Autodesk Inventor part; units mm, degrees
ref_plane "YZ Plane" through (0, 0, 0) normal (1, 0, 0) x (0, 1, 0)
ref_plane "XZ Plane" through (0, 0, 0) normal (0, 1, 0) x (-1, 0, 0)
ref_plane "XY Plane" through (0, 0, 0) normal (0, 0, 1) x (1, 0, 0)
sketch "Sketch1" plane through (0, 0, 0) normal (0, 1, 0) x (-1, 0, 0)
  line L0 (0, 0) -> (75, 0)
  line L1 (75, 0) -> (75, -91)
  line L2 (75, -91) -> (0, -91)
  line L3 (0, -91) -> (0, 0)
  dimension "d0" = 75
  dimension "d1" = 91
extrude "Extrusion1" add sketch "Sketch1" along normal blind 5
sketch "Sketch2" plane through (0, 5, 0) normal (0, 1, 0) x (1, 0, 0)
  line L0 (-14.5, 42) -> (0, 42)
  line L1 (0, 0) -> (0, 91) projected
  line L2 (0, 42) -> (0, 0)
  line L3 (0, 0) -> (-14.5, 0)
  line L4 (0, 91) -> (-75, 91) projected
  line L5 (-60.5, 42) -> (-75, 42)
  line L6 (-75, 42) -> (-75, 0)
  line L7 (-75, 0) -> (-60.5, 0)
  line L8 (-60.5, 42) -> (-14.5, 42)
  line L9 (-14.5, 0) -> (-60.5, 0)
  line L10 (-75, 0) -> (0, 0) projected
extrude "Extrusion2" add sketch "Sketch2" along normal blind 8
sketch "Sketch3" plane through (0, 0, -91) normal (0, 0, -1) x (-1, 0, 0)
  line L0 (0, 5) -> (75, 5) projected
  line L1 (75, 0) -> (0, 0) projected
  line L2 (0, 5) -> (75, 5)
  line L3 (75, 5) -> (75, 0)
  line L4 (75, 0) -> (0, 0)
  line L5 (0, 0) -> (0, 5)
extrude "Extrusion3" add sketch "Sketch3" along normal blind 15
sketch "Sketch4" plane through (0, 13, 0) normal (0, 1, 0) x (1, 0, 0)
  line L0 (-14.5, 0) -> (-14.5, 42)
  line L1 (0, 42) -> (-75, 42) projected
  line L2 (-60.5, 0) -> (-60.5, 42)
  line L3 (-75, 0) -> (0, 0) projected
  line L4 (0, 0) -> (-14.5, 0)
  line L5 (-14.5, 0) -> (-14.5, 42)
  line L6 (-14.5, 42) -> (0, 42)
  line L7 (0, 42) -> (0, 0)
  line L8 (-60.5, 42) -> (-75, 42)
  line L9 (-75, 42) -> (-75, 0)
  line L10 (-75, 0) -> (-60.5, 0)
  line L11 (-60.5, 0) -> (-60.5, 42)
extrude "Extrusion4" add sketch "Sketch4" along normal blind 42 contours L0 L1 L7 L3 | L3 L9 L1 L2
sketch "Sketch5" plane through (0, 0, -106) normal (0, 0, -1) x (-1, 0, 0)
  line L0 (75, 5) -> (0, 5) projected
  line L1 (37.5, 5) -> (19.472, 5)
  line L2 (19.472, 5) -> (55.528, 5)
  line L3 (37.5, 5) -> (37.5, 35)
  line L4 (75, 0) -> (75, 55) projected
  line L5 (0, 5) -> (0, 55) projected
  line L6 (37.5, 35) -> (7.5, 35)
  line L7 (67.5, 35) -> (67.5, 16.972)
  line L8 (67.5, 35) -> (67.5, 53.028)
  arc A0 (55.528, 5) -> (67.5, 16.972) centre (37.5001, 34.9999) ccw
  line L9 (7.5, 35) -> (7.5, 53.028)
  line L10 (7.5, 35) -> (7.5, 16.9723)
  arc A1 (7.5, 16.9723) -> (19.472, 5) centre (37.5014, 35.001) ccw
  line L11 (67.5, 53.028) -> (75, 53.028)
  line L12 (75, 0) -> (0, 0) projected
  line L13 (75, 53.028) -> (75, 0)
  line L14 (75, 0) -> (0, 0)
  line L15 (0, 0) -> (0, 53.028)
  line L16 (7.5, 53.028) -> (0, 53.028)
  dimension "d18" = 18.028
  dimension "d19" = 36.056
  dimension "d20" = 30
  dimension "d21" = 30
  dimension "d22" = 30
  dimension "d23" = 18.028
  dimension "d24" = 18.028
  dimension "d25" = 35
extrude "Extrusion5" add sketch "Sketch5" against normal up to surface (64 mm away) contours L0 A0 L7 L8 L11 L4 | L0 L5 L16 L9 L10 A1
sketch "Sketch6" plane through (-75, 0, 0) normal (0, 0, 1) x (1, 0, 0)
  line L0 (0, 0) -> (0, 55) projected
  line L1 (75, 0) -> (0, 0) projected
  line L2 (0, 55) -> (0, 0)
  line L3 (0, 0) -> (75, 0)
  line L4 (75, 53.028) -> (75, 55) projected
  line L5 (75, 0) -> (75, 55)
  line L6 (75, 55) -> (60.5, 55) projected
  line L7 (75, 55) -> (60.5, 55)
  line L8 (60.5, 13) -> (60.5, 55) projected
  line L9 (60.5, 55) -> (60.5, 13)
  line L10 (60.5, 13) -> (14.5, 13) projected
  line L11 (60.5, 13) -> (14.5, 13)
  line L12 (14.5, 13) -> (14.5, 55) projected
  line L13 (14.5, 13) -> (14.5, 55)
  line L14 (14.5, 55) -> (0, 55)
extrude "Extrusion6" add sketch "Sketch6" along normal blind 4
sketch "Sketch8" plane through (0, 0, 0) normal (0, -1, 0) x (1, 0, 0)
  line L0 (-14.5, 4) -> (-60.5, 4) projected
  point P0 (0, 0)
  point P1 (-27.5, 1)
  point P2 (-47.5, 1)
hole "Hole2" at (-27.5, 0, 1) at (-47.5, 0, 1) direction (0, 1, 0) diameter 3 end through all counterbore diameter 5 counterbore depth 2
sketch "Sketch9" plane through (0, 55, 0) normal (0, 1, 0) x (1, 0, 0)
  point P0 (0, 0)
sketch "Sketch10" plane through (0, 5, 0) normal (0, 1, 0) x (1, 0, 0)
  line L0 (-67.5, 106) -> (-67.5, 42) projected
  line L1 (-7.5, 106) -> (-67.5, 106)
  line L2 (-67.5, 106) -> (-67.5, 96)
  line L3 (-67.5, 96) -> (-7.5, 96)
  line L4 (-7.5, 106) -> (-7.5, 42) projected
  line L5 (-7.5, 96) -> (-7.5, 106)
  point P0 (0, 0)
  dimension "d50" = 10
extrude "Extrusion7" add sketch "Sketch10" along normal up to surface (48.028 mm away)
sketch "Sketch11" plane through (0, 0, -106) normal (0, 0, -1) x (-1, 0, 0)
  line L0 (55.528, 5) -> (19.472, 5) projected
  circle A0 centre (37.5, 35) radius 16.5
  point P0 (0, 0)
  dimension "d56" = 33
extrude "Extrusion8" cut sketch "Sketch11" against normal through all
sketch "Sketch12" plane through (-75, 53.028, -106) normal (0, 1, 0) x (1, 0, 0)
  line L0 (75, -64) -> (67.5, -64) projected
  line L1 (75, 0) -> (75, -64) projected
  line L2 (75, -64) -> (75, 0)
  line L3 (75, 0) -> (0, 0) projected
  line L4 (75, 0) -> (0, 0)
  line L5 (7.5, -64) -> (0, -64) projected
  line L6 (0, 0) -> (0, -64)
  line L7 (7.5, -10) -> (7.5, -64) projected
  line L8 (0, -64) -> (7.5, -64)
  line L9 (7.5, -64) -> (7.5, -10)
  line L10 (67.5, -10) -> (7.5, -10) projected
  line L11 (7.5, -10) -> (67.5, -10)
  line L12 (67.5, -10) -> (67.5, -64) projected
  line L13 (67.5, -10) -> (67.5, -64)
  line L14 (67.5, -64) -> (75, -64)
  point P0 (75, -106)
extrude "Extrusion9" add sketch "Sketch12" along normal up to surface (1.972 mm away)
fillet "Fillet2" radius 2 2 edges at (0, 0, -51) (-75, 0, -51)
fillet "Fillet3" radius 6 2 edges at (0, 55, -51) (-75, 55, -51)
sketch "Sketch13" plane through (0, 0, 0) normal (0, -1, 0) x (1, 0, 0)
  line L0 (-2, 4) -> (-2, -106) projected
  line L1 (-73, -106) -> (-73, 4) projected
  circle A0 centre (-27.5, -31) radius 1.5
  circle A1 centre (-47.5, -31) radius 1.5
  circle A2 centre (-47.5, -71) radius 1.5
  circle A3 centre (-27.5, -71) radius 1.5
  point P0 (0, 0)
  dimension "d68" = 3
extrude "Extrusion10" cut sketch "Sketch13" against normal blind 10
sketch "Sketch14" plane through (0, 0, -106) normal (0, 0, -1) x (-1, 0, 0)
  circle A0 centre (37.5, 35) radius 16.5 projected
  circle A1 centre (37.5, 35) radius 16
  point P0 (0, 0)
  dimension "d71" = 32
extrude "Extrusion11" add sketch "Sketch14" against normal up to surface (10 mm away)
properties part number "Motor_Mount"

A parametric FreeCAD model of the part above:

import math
import FreeCAD as App
import Part
import Sketcher
from FreeCAD import Vector
Q = App.Units.Quantity


def edges_at(feature, points):
    """Names of the edges that pass closest to the given points."""
    edges = feature.Shape.Edges
    near = lambda p: min(range(len(edges)), key=lambda i: edges[i].distToShape(Part.Vertex(*p))[0])
    return sorted({f"Edge{near(p) + 1}" for p in points})

doc = App.newDocument("Part")
body = doc.addObject("PartDesign::Body", "Body")

# Sketch on XZ plane
sketch1 = body.newObject("Sketcher::SketchObject", "Sketch")
sketch1.AttachmentSupport = (doc.getObject("XZ_Plane"), [""])
sketch1.MapMode = "FlatFace"
sketch1.addGeometry([
    Part.LineSegment(Vector(-75, 0, 0), Vector(0, 0, 0)),
    Part.LineSegment(Vector(0, 0, 0), Vector(0, -91, 0)),
    Part.LineSegment(Vector(0, -91, 0), Vector(-75, -91, 0)),
    Part.LineSegment(Vector(-75, -91, 0), Vector(-75, 0, 0)),
], False)
sketch1.addConstraint([
    Sketcher.Constraint("Coincident", 0, 2, 1, 1),
    Sketcher.Constraint("Coincident", 1, 2, 2, 1),
    Sketcher.Constraint("Coincident", 2, 2, 3, 1),
    Sketcher.Constraint("Coincident", 3, 2, 0, 1),
    Sketcher.Constraint("Horizontal", 0),
    Sketcher.Constraint("Vertical", 1),
    Sketcher.Constraint("Horizontal", 2),
    Sketcher.Constraint("Vertical", 3),
    Sketcher.Constraint("Coincident", 0, 2, -1, 1),
    Sketcher.Constraint("DistanceX", 0, 1, 0, 2, Q("75 mm")),
    Sketcher.Constraint("DistanceY", 1, 2, 1, 1, Q("91 mm")),
])
pad1 = body.newObject("PartDesign::Pad", "Pad")
pad1.Profile = sketch1
pad1.Length = 5
pad1.Reversed = True

# Sketch on XZ plane
sketch2 = body.newObject("Sketcher::SketchObject", "Sketch001")
sketch2.AttachmentSupport = (doc.getObject("XZ_Plane"), [""])
sketch2.MapMode = "FlatFace"
sketch2.AttachmentOffset = App.Placement(Vector(0, 0, -5), App.Rotation())
sketch2.addGeometry([
    Part.LineSegment(Vector(0, -42, 0), Vector(-75, -42, 0)),
    Part.LineSegment(Vector(-75, -42, 0), Vector(-75, 0, 0)),
    Part.LineSegment(Vector(-75, 0, 0), Vector(0, 0, 0)),
    Part.LineSegment(Vector(0, 0, 0), Vector(0, -42, 0)),
], False)
sketch2.addConstraint([
    Sketcher.Constraint("Coincident", 0, 2, 1, 1),
    Sketcher.Constraint("Coincident", 1, 2, 2, 1),
    Sketcher.Constraint("Coincident", 2, 2, 3, 1),
    Sketcher.Constraint("Coincident", 3, 2, 0, 1),
    Sketcher.Constraint("Horizontal", 0),
    Sketcher.Constraint("Vertical", 1),
    Sketcher.Constraint("Horizontal", 2),
    Sketcher.Constraint("Vertical", 3),
    Sketcher.Constraint("Coincident", 2, 2, -1, 1),
    Sketcher.Constraint("DistanceX", 0, 2, 0, 1, Q("75 mm")),
    Sketcher.Constraint("DistanceY", 1, 1, 1, 2, Q("42 mm")),
])
pad2 = body.newObject("PartDesign::Pad", "Pad001")
pad2.Profile = sketch2
pad2.Length = 8
pad2.Reversed = True

# Sketch on XY plane
sketch3 = body.newObject("Sketcher::SketchObject", "Sketch002")
sketch3.AttachmentSupport = (doc.getObject("XY_Plane"), [""])
sketch3.MapMode = "FlatFace"
sketch3.AttachmentOffset = App.Placement(Vector(0, 0, -91), App.Rotation())
sketch3.addGeometry([
    Part.LineSegment(Vector(-75, 5, 0), Vector(0, 5, 0)),
    Part.LineSegment(Vector(0, 5, 0), Vector(0, 0, 0)),
    Part.LineSegment(Vector(0, 0, 0), Vector(-75, 0, 0)),
    Part.LineSegment(Vector(-75, 0, 0), Vector(-75, 5, 0)),
], False)
sketch3.addConstraint([
    Sketcher.Constraint("Coincident", 0, 2, 1, 1),
    Sketcher.Constraint("Coincident", 1, 2, 2, 1),
    Sketcher.Constraint("Coincident", 2, 2, 3, 1),
    Sketcher.Constraint("Coincident", 3, 2, 0, 1),
    Sketcher.Constraint("Horizontal", 0),
    Sketcher.Constraint("Vertical", 1),
    Sketcher.Constraint("Horizontal", 2),
    Sketcher.Constraint("Vertical", 3),
    Sketcher.Constraint("Coincident", 1, 2, -1, 1),
    Sketcher.Constraint("DistanceX", 0, 1, 0, 2, Q("75 mm")),
    Sketcher.Constraint("DistanceY", 1, 2, 1, 1, Q("5 mm")),
])
pad3 = body.newObject("PartDesign::Pad", "Pad002")
pad3.Profile = sketch3
pad3.Length = 15
pad3.Reversed = True

# Sketch on XZ plane
sketch4 = body.newObject("Sketcher::SketchObject", "Sketch003")
sketch4.AttachmentSupport = (doc.getObject("XZ_Plane"), [""])
sketch4.MapMode = "FlatFace"
sketch4.AttachmentOffset = App.Placement(Vector(0, 0, -13), App.Rotation())
sketch4.addGeometry([
    Part.LineSegment(Vector(-14, -42, 0), Vector(-14, 0, 0)),  # 0
    Part.LineSegment(Vector(-14, 0, 0), Vector(0, 0, 0)),  # 1
    Part.LineSegment(Vector(0, 0, 0), Vector(0, -42, 0)),  # 2
    Part.LineSegment(Vector(0, -42, 0), Vector(-14, -42, 0)),  # 3
    Part.LineSegment(Vector(-75, 0, 0), Vector(-60, 0, 0)),  # 4
    Part.LineSegment(Vector(-60, 0, 0), Vector(-60, -42, 0)),  # 5
    Part.LineSegment(Vector(-60, -42, 0), Vector(-75, -42, 0)),  # 6
    Part.LineSegment(Vector(-75, -42, 0), Vector(-75, 0, 0)),  # 7
], False)
sketch4.addConstraint([
    Sketcher.Constraint("Coincident", 0, 2, 1, 1),
    Sketcher.Constraint("Coincident", 1, 2, 2, 1),
    Sketcher.Constraint("Coincident", 2, 2, 3, 1),
    Sketcher.Constraint("Coincident", 3, 2, 0, 1),
    Sketcher.Constraint("Coincident", 4, 2, 5, 1),
    Sketcher.Constraint("Coincident", 5, 2, 6, 1),
    Sketcher.Constraint("Coincident", 6, 2, 7, 1),
    Sketcher.Constraint("Coincident", 7, 2, 4, 1),
    Sketcher.Constraint("Vertical", 0),
    Sketcher.Constraint("Horizontal", 1),
    Sketcher.Constraint("Vertical", 2),
    Sketcher.Constraint("Horizontal", 3),
    Sketcher.Constraint("Horizontal", 4),
    Sketcher.Constraint("Vertical", 5),
    Sketcher.Constraint("Horizontal", 6),
    Sketcher.Constraint("Vertical", 7),
    Sketcher.Constraint("Coincident", 1, 2, -1, 1),
    Sketcher.Constraint("PointOnObject", 4, 2, -1),
    Sketcher.Constraint("Horizontal", 3, 2, 5, 2),
    Sketcher.Constraint("Equal", 3, 4),
    Sketcher.Constraint("DistanceY", 0, 1, 0, 2, Q("42 mm")),
    Sketcher.Constraint("DistanceX", 1, 1, 1, 2, Q("14.5 mm")),
    Sketcher.Constraint("DistanceX", 6, 2, -1, 1, Q("75 mm")),
])
pad4 = body.newObject("PartDesign::Pad", "Pad003")
pad4.Profile = sketch4
pad4.Length = 42
pad4.Reversed = True

# Sketch on XY plane
sketch5 = body.newObject("Sketcher::SketchObject", "Sketch004")
sketch5.AttachmentSupport = (doc.getObject("XY_Plane"), [""])
sketch5.MapMode = "FlatFace"
sketch5.AttachmentOffset = App.Placement(Vector(0, 0, -106), App.Rotation())
sketch5.addGeometry([
    Part.LineSegment(Vector(-56, 5, 0), Vector(-75, 5, 0)),  # 0
    Part.LineSegment(Vector(-75, 5, 0), Vector(-75, 53, 0)),  # 1
    Part.LineSegment(Vector(-75, 53, 0), Vector(-68, 53, 0)),  # 2
    Part.LineSegment(Vector(-68, 53, 0), Vector(-68, 17, 0)),  # 3
    Part.ArcOfCircle(Part.Circle(Vector(-38, 35, 0), Vector(0, 0, 1), 35), math.radians(-149), math.radians(-121)),  # 4
    Part.LineSegment(Vector(0, 5, 0), Vector(-19, 5, 0)),  # 5
    Part.ArcOfCircle(Part.Circle(Vector(-38, 35, 0), Vector(0, 0, 1), 35), math.radians(-59), math.radians(-31)),  # 6
    Part.LineSegment(Vector(-8, 17, 0), Vector(-8, 53, 0)),  # 7
    Part.LineSegment(Vector(-8, 53, 0), Vector(0, 53, 0)),  # 8
    Part.LineSegment(Vector(0, 53, 0), Vector(0, 5, 0)),  # 9
], False)
sketch5.addConstraint([
    Sketcher.Constraint("Coincident", 0, 2, 1, 1),
    Sketcher.Constraint("Coincident", 1, 2, 2, 1),
    Sketcher.Constraint("Coincident", 2, 2, 3, 1),
    Sketcher.Constraint("Coincident", 3, 2, 4, 1),
    Sketcher.Constraint("Coincident", 4, 2, 0, 1),
    Sketcher.Constraint("Coincident", 5, 2, 6, 1),
    Sketcher.Constraint("Coincident", 6, 2, 7, 1),
    Sketcher.Constraint("Coincident", 7, 2, 8, 1),
    Sketcher.Constraint("Coincident", 8, 2, 9, 1),
    Sketcher.Constraint("Coincident", 9, 2, 5, 1),
    Sketcher.Constraint("Horizontal", 0),
    Sketcher.Constraint("Vertical", 1),
    Sketcher.Constraint("Horizontal", 2),
    Sketcher.Constraint("Vertical", 3),
    Sketcher.Constraint("Horizontal", 5),
    Sketcher.Constraint("Vertical", 7),
    Sketcher.Constraint("Horizontal", 8),
    Sketcher.Constraint("Vertical", 9),
    Sketcher.Constraint("PointOnObject", 8, 2, -2),
    Sketcher.Constraint("Horizontal", 4, 2, 5, 2),
    Sketcher.Constraint("Horizontal", 2, 2, 7, 2),
    Sketcher.Constraint("Equal", 0, 5),
    Sketcher.Constraint("Equal", 2, 8),
    Sketcher.Constraint("Radius", 4, Q("35 mm")),
    Sketcher.Constraint("DistanceY", -1, 1, 4, 3, Q("35 mm")),
    Sketcher.Constraint("DistanceY", 0, 2, 4, 3, Q("30 mm")),
    Sketcher.Constraint("DistanceX", 2, 2, 4, 3, Q("30 mm")),
    Sketcher.Constraint("DistanceX", 4, 3, 6, 2, Q("30 mm")),
    Sketcher.Constraint("DistanceY", 3, 2, 3, 1, Q("36.056 mm")),
    Sketcher.Constraint("DistanceX", 2, 1, 2, 2, Q("7.5 mm")),
    Sketcher.Constraint("DistanceY", 7, 1, 7, 2, Q("36.0557 mm")),
    Sketcher.Constraint("Radius", 6, Q("35.0017 mm")),
])
pad5 = body.newObject("PartDesign::Pad", "Pad004")
pad5.Profile = sketch5
pad5.Length = 64

# Sketch on XY plane
sketch6 = body.newObject("Sketcher::SketchObject", "Sketch005")
sketch6.AttachmentSupport = (doc.getObject("XY_Plane"), [""])
sketch6.MapMode = "FlatFace"
sketch6.addGeometry([
    Part.LineSegment(Vector(-75, 55, 0), Vector(-75, 0, 0)),  # 0
    Part.LineSegment(Vector(-75, 0, 0), Vector(0, 0, 0)),  # 1
    Part.LineSegment(Vector(0, 0, 0), Vector(0, 55, 0)),  # 2
    Part.LineSegment(Vector(0, 55, 0), Vector(-14, 55, 0)),  # 3
    Part.LineSegment(Vector(-14, 55, 0), Vector(-14, 13, 0)),  # 4
    Part.LineSegment(Vector(-14, 13, 0), Vector(-60, 13, 0)),  # 5
    Part.LineSegment(Vector(-60, 13, 0), Vector(-60, 55, 0)),  # 6
    Part.LineSegment(Vector(-60, 55, 0), Vector(-75, 55, 0)),  # 7
], False)
sketch6.addConstraint([
    Sketcher.Constraint("Coincident", 0, 2, 1, 1),
    Sketcher.Constraint("Coincident", 1, 2, 2, 1),
    Sketcher.Constraint("Coincident", 2, 2, 3, 1),
    Sketcher.Constraint("Coincident", 3, 2, 4, 1),
    Sketcher.Constraint("Coincident", 4, 2, 5, 1),
    Sketcher.Constraint("Coincident", 5, 2, 6, 1),
    Sketcher.Constraint("Coincident", 6, 2, 7, 1),
    Sketcher.Constraint("Coincident", 7, 2, 0, 1),
    Sketcher.Constraint("Vertical", 0),
    Sketcher.Constraint("Horizontal", 1),
    Sketcher.Constraint("Vertical", 2),
    Sketcher.Constraint("Horizontal", 3),
    Sketcher.Constraint("Vertical", 4),
    Sketcher.Constraint("Horizontal", 5),
    Sketcher.Constraint("Vertical", 6),
    Sketcher.Constraint("Horizontal", 7),
    Sketcher.Constraint("Coincident", 1, 2, -1, 1),
    Sketcher.Constraint("Horizontal", 3, 2, 6, 2),
    Sketcher.Constraint("Equal", 3, 7),
    Sketcher.Constraint("DistanceX", 1, 1, 1, 2, Q("75 mm")),
    Sketcher.Constraint("DistanceX", 5, 2, 5, 1, Q("46 mm")),
    Sketcher.Constraint("DistanceY", 0, 2, 0, 1, Q("55 mm")),
    Sketcher.Constraint("DistanceY", 4, 2, 4, 1, Q("42 mm")),
])
pad6 = body.newObject("PartDesign::Pad", "Pad005")
pad6.Profile = sketch6
pad6.Length = 4

# Sketch on XZ plane
sketch7 = body.newObject("Sketcher::SketchObject", "Sketch006")
sketch7.AttachmentSupport = (doc.getObject("XZ_Plane"), [""])
sketch7.MapMode = "FlatFace"
sketch7.addGeometry([
    Part.Circle(Vector(-27.5, 1, 0), Vector(0, 0, 1), 1.5),
    Part.Circle(Vector(-47.5, 1, 0), Vector(0, 0, 1), 1.5),
], False)
sketch7.addConstraint([
    Sketcher.Constraint("Equal", 0, 1),
    Sketcher.Constraint("Horizontal", 0, 3, 1, 3),
    Sketcher.Constraint("Diameter", 0, Q("3 mm")),
    Sketcher.Constraint("DistanceY", -1, 1, 0, 3, Q("1 mm")),
    Sketcher.Constraint("DistanceX", 1, 3, 0, 3, Q("20 mm")),
    Sketcher.Constraint("DistanceX", 0, 3, -1, 1, Q("27.5 mm")),
])
doc.recompute()
hole = body.newObject("PartDesign::Hole", "Hole")
hole.Profile = sketch7
hole.ThreadType = "None"
hole.Diameter = 3
hole.DepthType = "ThroughAll"
hole.HoleCutType = "Counterbore"
hole.HoleCutDiameter = 5
hole.HoleCutDepth = 2

# Sketch on XZ plane
sketch8 = body.newObject("Sketcher::SketchObject", "Sketch007")
sketch8.AttachmentSupport = (doc.getObject("XZ_Plane"), [""])
sketch8.MapMode = "FlatFace"
sketch8.AttachmentOffset = App.Placement(Vector(0, 0, -5), App.Rotation())
sketch8.addGeometry([
    Part.LineSegment(Vector(-8, -106, 0), Vector(-68, -106, 0)),
    Part.LineSegment(Vector(-68, -106, 0), Vector(-68, -96, 0)),
    Part.LineSegment(Vector(-68, -96, 0), Vector(-8, -96, 0)),
    Part.LineSegment(Vector(-8, -96, 0), Vector(-8, -106, 0)),
], False)
sketch8.addConstraint([
    Sketcher.Constraint("Coincident", 0, 2, 1, 1),
    Sketcher.Constraint("Coincident", 1, 2, 2, 1),
    Sketcher.Constraint("Coincident", 2, 2, 3, 1),
    Sketcher.Constraint("Coincident", 3, 2, 0, 1),
    Sketcher.Constraint("Horizontal", 0),
    Sketcher.Constraint("Vertical", 1),
    Sketcher.Constraint("Horizontal", 2),
    Sketcher.Constraint("Vertical", 3),
    Sketcher.Constraint("DistanceY", 1, 1, 1, 2, Q("10 mm")),
    Sketcher.Constraint("DistanceX", 0, 2, 0, 1, Q("60 mm")),
    Sketcher.Constraint("DistanceY", 0, 2, -1, 1, Q("106 mm")),
    Sketcher.Constraint("DistanceX", 0, 2, -1, 1, Q("67.5 mm")),
])
pad7 = body.newObject("PartDesign::Pad", "Pad006")
pad7.Profile = sketch8
pad7.Length = 48.028
pad7.Reversed = True

# Sketch on XY plane
sketch9 = body.newObject("Sketcher::SketchObject", "Sketch008")
sketch9.AttachmentSupport = (doc.getObject("XY_Plane"), [""])
sketch9.MapMode = "FlatFace"
sketch9.AttachmentOffset = App.Placement(Vector(0, 0, -106), App.Rotation())
sketch9.addGeometry(Part.Circle(Vector(-38, 35, 0), Vector(0, 0, 1), 16), False)
sketch9.addConstraint([
    Sketcher.Constraint("Diameter", 0, Q("33 mm")),
    Sketcher.Constraint("DistanceY", -1, 1, 0, 3, Q("35 mm")),
    Sketcher.Constraint("DistanceX", 0, 3, -1, 1, Q("37.5 mm")),
])
pocket1 = body.newObject("PartDesign::Pocket", "Pocket")
pocket1.Profile = sketch9
pocket1.Type = "ThroughAll"
pocket1.Reversed = True

# Sketch on XZ plane
sketch10 = body.newObject("Sketcher::SketchObject", "Sketch009")
sketch10.AttachmentSupport = (doc.getObject("XZ_Plane"), [""])
sketch10.MapMode = "FlatFace"
sketch10.AttachmentOffset = App.Placement(Vector(0, 0, -53.028), App.Rotation())
sketch10.addGeometry([
    Part.LineSegment(Vector(-8, -42, 0), Vector(0, -42, 0)),  # 0
    Part.LineSegment(Vector(0, -42, 0), Vector(0, -106, 0)),  # 1
    Part.LineSegment(Vector(0, -106, 0), Vector(-75, -106, 0)),  # 2
    Part.LineSegment(Vector(-75, -106, 0), Vector(-75, -42, 0)),  # 3
    Part.LineSegment(Vector(-75, -42, 0), Vector(-68, -42, 0)),  # 4
    Part.LineSegment(Vector(-68, -42, 0), Vector(-68, -96, 0)),  # 5
    Part.LineSegment(Vector(-68, -96, 0), Vector(-8, -96, 0)),  # 6
    Part.LineSegment(Vector(-8, -96, 0), Vector(-8, -42, 0)),  # 7
], False)
sketch10.addConstraint([
    Sketcher.Constraint("Coincident", 0, 2, 1, 1),
    Sketcher.Constraint("Coincident", 1, 2, 2, 1),
    Sketcher.Constraint("Coincident", 2, 2, 3, 1),
    Sketcher.Constraint("Coincident", 3, 2, 4, 1),
    Sketcher.Constraint("Coincident", 4, 2, 5, 1),
    Sketcher.Constraint("Coincident", 5, 2, 6, 1),
    Sketcher.Constraint("Coincident", 6, 2, 7, 1),
    Sketcher.Constraint("Coincident", 7, 2, 0, 1),
    Sketcher.Constraint("Horizontal", 0),
    Sketcher.Constraint("Vertical", 1),
    Sketcher.Constraint("Horizontal", 2),
    Sketcher.Constraint("Vertical", 3),
    Sketcher.Constraint("Horizontal", 4),
    Sketcher.Constraint("Vertical", 5),
    Sketcher.Constraint("Horizontal", 6),
    Sketcher.Constraint("Vertical", 7),
    Sketcher.Constraint("PointOnObject", 0, 2, -2),
    Sketcher.Constraint("Horizontal", 0, 2, 3, 2),
    Sketcher.Constraint("Equal", 0, 4),
    Sketcher.Constraint("DistanceX", 2, 2, 2, 1, Q("75 mm")),
    Sketcher.Constraint("DistanceX", 6, 1, 6, 2, Q("60 mm")),
    Sketcher.Constraint("DistanceY", 1, 2, 1, 1, Q("64 mm")),
    Sketcher.Constraint("DistanceY", 5, 2, 5, 1, Q("54 mm")),
    Sketcher.Constraint("DistanceY", 0, 2, -1, 1, Q("42 mm")),
])
pad8 = body.newObject("PartDesign::Pad", "Pad007")
pad8.Profile = sketch10
pad8.Length = 1.972
pad8.Reversed = True
doc.recompute()

fillet = body.newObject("PartDesign::Fillet", "Fillet")
fillet.Base = (pad8, edges_at(pad8, [(0, 0, -51), (-75, 0, -51)]))
fillet.Radius = 2
doc.recompute()

fillet2 = body.newObject("PartDesign::Fillet", "Fillet001")
fillet2.Base = (fillet, edges_at(fillet, [(0, 55, -51), (-75, 55, -51)]))
fillet2.Radius = 6

# Sketch on XZ plane
sketch11 = body.newObject("Sketcher::SketchObject", "Sketch010")
sketch11.AttachmentSupport = (doc.getObject("XZ_Plane"), [""])
sketch11.MapMode = "FlatFace"
sketch11.addGeometry([
    Part.Circle(Vector(-27.5, -31, 0), Vector(0, 0, 1), 1.5),
    Part.Circle(Vector(-47.5, -31, 0), Vector(0, 0, 1), 1.5),
    Part.Circle(Vector(-47.5, -71, 0), Vector(0, 0, 1), 1.5),
    Part.Circle(Vector(-27.5, -71, 0), Vector(0, 0, 1), 1.5),
], False)
sketch11.addConstraint([
    Sketcher.Constraint("Equal", 0, 1),
    Sketcher.Constraint("Equal", 1, 2),
    Sketcher.Constraint("Equal", 2, 3),
    Sketcher.Constraint("Horizontal", 0, 3, 1, 3),
    Sketcher.Constraint("Horizontal", 2, 3, 3, 3),
    Sketcher.Constraint("Vertical", 1, 3, 2, 3),
    Sketcher.Constraint("Vertical", 0, 3, 3, 3),
    Sketcher.Constraint("Diameter", 0, Q("3 mm")),
    Sketcher.Constraint("DistanceY", 0, 3, -1, 1, Q("31 mm")),
    Sketcher.Constraint("DistanceY", 2, 3, -1, 1, Q("71 mm")),
    Sketcher.Constraint("DistanceX", 1, 3, 0, 3, Q("20 mm")),
    Sketcher.Constraint("DistanceX", 0, 3, -1, 1, Q("27.5 mm")),
])
pocket2 = body.newObject("PartDesign::Pocket", "Pocket001")
pocket2.Profile = sketch11
pocket2.Length = 10

# Sketch on XY plane
sketch12 = body.newObject("Sketcher::SketchObject", "Sketch011")
sketch12.AttachmentSupport = (doc.getObject("XY_Plane"), [""])
sketch12.MapMode = "FlatFace"
sketch12.AttachmentOffset = App.Placement(Vector(0, 0, -106), App.Rotation())
sketch12.addGeometry([
    Part.Circle(Vector(-38, 35, 0), Vector(0, 0, 1), 16),
    Part.Circle(Vector(-38, 35, 0), Vector(0, 0, 1), 16),
], False)
sketch12.addConstraint([
    Sketcher.Constraint("Coincident", 1, 3, 0, 3),
    Sketcher.Constraint("Diameter", 1, Q("32 mm")),
    Sketcher.Constraint("Diameter", 0, Q("33 mm")),
    Sketcher.Constraint("DistanceY", -1, 1, 0, 3, Q("35 mm")),
    Sketcher.Constraint("DistanceX", 0, 3, -1, 1, Q("37.5 mm")),
])
pad9 = body.newObject("PartDesign::Pad", "Pad008")
pad9.Profile = sketch12
pad9.Length = 10

doc.recompute()
